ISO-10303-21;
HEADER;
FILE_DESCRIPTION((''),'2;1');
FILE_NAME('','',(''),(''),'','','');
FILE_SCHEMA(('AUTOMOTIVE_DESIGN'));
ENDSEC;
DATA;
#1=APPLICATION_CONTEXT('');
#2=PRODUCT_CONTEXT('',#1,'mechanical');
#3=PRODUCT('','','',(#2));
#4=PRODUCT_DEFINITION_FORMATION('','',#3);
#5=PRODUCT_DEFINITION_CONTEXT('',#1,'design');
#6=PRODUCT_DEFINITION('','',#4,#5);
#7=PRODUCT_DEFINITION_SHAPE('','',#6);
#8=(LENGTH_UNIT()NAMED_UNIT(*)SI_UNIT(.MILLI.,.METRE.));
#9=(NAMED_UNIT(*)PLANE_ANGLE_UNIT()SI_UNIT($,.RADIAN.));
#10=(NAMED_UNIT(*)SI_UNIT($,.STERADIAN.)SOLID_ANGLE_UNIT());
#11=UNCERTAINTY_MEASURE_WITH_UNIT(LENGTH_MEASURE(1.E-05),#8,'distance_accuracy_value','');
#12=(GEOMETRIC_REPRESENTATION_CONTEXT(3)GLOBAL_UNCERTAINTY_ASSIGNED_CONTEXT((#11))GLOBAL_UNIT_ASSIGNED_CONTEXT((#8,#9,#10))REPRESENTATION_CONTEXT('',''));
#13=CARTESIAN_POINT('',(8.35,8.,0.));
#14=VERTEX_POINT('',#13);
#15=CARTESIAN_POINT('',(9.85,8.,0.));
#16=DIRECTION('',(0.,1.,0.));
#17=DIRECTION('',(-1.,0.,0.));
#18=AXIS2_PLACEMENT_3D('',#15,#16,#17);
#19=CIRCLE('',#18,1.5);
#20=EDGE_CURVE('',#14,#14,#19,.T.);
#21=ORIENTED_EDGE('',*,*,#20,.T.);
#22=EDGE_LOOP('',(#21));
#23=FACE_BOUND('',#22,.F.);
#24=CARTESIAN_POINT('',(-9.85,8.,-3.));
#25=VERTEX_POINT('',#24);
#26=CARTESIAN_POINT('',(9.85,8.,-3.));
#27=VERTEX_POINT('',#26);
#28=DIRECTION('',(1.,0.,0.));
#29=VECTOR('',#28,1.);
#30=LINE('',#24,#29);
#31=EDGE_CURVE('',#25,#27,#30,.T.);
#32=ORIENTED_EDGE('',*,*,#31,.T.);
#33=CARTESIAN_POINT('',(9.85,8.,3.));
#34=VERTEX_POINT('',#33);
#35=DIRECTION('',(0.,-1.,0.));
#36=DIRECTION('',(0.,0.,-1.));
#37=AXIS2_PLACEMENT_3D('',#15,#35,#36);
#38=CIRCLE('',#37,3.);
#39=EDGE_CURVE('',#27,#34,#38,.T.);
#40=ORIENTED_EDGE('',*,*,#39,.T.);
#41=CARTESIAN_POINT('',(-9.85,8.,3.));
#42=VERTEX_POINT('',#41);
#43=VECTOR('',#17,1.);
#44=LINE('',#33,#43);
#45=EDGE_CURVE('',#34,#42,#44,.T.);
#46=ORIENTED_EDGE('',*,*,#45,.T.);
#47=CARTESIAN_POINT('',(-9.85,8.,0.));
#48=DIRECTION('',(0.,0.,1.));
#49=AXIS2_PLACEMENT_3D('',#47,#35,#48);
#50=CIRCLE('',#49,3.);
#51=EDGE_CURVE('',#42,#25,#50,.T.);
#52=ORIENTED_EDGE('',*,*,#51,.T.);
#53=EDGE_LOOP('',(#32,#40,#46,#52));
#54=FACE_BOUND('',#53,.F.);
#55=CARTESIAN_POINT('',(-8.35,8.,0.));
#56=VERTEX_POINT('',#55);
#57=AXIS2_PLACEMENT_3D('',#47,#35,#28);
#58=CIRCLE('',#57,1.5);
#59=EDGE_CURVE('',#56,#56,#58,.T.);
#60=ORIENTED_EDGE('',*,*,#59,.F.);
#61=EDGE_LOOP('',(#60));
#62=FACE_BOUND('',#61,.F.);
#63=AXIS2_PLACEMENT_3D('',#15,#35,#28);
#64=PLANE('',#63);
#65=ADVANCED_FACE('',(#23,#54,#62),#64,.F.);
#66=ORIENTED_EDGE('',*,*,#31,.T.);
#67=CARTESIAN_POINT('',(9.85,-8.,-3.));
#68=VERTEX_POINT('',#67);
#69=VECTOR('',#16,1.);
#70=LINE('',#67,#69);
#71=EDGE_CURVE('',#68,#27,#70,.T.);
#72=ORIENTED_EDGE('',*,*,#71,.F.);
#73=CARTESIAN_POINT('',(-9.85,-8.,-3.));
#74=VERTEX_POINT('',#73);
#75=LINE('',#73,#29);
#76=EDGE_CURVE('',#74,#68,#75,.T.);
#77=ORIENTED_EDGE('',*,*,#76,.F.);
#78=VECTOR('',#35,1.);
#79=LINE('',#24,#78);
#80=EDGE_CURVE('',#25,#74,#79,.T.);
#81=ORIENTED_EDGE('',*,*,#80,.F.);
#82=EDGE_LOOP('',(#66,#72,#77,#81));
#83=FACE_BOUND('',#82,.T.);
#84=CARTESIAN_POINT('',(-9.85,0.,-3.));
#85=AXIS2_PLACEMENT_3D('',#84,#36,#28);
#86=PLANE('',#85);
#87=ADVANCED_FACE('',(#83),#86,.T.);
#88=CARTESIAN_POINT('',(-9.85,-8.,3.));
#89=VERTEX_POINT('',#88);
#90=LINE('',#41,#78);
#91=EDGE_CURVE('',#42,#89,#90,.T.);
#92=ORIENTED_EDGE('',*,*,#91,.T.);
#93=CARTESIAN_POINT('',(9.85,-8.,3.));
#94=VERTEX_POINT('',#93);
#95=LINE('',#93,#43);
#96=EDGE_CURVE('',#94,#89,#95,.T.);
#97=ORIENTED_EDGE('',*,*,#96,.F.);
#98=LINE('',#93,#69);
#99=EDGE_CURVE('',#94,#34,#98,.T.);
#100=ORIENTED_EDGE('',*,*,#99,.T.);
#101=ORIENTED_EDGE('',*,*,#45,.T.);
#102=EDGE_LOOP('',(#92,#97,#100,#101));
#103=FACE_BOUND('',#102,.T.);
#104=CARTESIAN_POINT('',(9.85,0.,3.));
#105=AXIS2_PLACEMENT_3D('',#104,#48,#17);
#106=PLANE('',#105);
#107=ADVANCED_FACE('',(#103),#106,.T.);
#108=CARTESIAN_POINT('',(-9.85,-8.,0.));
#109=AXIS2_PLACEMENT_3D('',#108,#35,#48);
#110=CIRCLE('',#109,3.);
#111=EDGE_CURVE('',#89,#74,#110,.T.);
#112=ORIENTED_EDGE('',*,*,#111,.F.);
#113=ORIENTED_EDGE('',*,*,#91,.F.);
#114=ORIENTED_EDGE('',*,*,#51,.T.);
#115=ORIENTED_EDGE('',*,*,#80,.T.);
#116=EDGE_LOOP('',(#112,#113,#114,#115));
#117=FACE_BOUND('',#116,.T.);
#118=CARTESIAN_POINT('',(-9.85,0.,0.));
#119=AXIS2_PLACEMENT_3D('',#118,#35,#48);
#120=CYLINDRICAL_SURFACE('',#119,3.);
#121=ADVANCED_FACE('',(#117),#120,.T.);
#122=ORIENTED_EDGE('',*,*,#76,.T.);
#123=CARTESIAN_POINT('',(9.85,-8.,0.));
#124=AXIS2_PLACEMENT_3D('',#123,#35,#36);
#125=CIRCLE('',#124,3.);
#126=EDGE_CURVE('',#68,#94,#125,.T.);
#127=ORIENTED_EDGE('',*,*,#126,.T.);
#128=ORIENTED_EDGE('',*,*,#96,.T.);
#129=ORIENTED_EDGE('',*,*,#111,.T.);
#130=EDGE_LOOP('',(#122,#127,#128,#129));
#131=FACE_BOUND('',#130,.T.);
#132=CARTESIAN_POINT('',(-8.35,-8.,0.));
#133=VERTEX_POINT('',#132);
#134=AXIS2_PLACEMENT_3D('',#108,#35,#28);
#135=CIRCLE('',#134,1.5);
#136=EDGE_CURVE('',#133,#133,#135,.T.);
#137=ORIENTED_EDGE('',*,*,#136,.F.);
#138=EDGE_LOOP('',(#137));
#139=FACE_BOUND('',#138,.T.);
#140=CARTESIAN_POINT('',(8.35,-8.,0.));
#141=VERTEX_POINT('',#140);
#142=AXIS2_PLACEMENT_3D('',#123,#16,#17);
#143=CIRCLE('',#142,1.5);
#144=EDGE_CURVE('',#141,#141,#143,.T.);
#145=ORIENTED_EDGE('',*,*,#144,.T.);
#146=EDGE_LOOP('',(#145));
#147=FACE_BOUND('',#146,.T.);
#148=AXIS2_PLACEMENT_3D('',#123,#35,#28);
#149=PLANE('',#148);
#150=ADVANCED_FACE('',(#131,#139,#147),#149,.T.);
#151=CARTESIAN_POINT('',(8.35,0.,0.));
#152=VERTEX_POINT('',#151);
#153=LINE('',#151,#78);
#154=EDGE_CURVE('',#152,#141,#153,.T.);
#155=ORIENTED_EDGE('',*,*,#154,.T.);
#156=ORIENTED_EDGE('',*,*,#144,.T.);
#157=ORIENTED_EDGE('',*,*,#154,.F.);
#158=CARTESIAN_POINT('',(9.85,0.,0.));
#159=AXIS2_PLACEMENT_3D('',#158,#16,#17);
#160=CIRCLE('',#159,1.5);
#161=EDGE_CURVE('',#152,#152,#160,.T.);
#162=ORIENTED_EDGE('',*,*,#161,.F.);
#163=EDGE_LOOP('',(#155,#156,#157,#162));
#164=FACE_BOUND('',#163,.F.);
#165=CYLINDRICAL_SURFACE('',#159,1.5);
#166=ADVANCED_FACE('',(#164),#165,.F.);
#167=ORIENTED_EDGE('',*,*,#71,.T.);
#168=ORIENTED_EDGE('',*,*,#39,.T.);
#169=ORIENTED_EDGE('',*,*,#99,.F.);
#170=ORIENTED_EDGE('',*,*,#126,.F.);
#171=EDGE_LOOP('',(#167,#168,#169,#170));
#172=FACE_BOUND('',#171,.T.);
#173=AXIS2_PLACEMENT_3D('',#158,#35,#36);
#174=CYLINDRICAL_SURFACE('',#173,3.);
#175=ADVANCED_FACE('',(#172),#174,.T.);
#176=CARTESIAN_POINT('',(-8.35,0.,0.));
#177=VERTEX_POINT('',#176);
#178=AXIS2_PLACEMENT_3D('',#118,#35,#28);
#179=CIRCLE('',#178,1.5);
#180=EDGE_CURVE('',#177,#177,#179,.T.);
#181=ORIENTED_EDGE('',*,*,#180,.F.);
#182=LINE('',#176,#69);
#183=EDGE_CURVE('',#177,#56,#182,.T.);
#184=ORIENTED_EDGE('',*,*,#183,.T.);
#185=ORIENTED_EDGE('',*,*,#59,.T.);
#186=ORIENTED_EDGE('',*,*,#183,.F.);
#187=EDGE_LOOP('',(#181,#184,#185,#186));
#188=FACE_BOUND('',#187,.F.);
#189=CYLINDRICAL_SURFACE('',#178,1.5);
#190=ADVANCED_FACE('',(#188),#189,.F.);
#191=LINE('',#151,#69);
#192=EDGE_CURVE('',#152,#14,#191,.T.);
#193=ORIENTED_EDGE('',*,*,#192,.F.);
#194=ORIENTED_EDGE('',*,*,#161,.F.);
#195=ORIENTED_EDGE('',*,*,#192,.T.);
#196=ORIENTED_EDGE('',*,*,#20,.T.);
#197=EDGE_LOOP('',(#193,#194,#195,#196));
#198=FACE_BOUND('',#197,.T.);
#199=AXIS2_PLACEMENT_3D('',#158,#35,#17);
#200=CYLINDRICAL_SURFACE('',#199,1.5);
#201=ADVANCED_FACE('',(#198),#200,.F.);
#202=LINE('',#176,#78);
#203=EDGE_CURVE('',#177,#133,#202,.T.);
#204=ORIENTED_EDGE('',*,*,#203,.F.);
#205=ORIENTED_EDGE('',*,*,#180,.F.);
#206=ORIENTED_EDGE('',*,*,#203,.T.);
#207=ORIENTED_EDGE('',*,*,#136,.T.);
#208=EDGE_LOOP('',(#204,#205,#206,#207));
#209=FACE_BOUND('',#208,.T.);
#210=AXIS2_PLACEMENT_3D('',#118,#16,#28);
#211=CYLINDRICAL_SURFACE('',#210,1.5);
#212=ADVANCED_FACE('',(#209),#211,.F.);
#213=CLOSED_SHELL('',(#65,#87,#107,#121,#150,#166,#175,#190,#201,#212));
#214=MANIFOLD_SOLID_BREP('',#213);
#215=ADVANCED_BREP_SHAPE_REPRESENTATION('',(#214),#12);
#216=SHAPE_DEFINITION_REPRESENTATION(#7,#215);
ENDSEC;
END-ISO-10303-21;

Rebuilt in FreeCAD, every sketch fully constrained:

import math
import FreeCAD as App
import Part
import Sketcher

V = App.Vector

doc = App.newDocument("Part")
body = doc.addObject("PartDesign::Body", "Body")

# Sketch on XZ plane
sketch1 = body.newObject("Sketcher::SketchObject", "Sketch")
sketch1.AttachmentSupport = (doc.getObject("XZ_Plane"), [""])
sketch1.MapMode = "FlatFace"
sketch1.addGeometry([
    Part.LineSegment(V(9.8, 3, 0), V(-9.8, 3, 0)),  # 0
    Part.ArcOfCircle(Part.Circle(V(-9.8, 0, 0), V(0, 0, 1), 3), math.radians(90), math.radians(270)),  # 1
    Part.LineSegment(V(-9.8, -3, 0), V(9.8, -3, 0)),  # 2
    Part.ArcOfCircle(Part.Circle(V(9.8, 0, 0), V(0, 0, 1), 3), math.radians(-90), math.radians(90)),  # 3
    Part.Circle(V(-9.8, 0, 0), V(0, 0, 1), 1.5),  # 4
    Part.Circle(V(9.8, 0, 0), V(0, 0, 1), 1.5),  # 5
], False)
sketch1.addConstraint([
    Sketcher.Constraint("Tangent", 0, 2, 1, 1),
    Sketcher.Constraint("Tangent", 1, 2, 2, 1),
    Sketcher.Constraint("Tangent", 2, 2, 3, 1),
    Sketcher.Constraint("Tangent", 3, 2, 0, 1),
    Sketcher.Constraint("Horizontal", 0),
    Sketcher.Constraint("Horizontal", 2),
    Sketcher.Constraint("Coincident", 4, 3, 1, 3),
    Sketcher.Constraint("Coincident", 5, 3, 3, 3),
    Sketcher.Constraint("Equal", 4, 5),
    Sketcher.Constraint("Symmetric", 1, 3, 3, 3, -1, 1),
    Sketcher.Constraint("Diameter", 4, 3.0),
    Sketcher.Constraint("Radius", 1, 3.0),
    Sketcher.Constraint("DistanceX", 0, 2, 0, 1, 19.7),
])
pad1 = body.newObject("PartDesign::Pad", "Pad")
pad1.Profile = sketch1
pad1.Length = 16
pad1.Midplane = True

doc.recompute()
